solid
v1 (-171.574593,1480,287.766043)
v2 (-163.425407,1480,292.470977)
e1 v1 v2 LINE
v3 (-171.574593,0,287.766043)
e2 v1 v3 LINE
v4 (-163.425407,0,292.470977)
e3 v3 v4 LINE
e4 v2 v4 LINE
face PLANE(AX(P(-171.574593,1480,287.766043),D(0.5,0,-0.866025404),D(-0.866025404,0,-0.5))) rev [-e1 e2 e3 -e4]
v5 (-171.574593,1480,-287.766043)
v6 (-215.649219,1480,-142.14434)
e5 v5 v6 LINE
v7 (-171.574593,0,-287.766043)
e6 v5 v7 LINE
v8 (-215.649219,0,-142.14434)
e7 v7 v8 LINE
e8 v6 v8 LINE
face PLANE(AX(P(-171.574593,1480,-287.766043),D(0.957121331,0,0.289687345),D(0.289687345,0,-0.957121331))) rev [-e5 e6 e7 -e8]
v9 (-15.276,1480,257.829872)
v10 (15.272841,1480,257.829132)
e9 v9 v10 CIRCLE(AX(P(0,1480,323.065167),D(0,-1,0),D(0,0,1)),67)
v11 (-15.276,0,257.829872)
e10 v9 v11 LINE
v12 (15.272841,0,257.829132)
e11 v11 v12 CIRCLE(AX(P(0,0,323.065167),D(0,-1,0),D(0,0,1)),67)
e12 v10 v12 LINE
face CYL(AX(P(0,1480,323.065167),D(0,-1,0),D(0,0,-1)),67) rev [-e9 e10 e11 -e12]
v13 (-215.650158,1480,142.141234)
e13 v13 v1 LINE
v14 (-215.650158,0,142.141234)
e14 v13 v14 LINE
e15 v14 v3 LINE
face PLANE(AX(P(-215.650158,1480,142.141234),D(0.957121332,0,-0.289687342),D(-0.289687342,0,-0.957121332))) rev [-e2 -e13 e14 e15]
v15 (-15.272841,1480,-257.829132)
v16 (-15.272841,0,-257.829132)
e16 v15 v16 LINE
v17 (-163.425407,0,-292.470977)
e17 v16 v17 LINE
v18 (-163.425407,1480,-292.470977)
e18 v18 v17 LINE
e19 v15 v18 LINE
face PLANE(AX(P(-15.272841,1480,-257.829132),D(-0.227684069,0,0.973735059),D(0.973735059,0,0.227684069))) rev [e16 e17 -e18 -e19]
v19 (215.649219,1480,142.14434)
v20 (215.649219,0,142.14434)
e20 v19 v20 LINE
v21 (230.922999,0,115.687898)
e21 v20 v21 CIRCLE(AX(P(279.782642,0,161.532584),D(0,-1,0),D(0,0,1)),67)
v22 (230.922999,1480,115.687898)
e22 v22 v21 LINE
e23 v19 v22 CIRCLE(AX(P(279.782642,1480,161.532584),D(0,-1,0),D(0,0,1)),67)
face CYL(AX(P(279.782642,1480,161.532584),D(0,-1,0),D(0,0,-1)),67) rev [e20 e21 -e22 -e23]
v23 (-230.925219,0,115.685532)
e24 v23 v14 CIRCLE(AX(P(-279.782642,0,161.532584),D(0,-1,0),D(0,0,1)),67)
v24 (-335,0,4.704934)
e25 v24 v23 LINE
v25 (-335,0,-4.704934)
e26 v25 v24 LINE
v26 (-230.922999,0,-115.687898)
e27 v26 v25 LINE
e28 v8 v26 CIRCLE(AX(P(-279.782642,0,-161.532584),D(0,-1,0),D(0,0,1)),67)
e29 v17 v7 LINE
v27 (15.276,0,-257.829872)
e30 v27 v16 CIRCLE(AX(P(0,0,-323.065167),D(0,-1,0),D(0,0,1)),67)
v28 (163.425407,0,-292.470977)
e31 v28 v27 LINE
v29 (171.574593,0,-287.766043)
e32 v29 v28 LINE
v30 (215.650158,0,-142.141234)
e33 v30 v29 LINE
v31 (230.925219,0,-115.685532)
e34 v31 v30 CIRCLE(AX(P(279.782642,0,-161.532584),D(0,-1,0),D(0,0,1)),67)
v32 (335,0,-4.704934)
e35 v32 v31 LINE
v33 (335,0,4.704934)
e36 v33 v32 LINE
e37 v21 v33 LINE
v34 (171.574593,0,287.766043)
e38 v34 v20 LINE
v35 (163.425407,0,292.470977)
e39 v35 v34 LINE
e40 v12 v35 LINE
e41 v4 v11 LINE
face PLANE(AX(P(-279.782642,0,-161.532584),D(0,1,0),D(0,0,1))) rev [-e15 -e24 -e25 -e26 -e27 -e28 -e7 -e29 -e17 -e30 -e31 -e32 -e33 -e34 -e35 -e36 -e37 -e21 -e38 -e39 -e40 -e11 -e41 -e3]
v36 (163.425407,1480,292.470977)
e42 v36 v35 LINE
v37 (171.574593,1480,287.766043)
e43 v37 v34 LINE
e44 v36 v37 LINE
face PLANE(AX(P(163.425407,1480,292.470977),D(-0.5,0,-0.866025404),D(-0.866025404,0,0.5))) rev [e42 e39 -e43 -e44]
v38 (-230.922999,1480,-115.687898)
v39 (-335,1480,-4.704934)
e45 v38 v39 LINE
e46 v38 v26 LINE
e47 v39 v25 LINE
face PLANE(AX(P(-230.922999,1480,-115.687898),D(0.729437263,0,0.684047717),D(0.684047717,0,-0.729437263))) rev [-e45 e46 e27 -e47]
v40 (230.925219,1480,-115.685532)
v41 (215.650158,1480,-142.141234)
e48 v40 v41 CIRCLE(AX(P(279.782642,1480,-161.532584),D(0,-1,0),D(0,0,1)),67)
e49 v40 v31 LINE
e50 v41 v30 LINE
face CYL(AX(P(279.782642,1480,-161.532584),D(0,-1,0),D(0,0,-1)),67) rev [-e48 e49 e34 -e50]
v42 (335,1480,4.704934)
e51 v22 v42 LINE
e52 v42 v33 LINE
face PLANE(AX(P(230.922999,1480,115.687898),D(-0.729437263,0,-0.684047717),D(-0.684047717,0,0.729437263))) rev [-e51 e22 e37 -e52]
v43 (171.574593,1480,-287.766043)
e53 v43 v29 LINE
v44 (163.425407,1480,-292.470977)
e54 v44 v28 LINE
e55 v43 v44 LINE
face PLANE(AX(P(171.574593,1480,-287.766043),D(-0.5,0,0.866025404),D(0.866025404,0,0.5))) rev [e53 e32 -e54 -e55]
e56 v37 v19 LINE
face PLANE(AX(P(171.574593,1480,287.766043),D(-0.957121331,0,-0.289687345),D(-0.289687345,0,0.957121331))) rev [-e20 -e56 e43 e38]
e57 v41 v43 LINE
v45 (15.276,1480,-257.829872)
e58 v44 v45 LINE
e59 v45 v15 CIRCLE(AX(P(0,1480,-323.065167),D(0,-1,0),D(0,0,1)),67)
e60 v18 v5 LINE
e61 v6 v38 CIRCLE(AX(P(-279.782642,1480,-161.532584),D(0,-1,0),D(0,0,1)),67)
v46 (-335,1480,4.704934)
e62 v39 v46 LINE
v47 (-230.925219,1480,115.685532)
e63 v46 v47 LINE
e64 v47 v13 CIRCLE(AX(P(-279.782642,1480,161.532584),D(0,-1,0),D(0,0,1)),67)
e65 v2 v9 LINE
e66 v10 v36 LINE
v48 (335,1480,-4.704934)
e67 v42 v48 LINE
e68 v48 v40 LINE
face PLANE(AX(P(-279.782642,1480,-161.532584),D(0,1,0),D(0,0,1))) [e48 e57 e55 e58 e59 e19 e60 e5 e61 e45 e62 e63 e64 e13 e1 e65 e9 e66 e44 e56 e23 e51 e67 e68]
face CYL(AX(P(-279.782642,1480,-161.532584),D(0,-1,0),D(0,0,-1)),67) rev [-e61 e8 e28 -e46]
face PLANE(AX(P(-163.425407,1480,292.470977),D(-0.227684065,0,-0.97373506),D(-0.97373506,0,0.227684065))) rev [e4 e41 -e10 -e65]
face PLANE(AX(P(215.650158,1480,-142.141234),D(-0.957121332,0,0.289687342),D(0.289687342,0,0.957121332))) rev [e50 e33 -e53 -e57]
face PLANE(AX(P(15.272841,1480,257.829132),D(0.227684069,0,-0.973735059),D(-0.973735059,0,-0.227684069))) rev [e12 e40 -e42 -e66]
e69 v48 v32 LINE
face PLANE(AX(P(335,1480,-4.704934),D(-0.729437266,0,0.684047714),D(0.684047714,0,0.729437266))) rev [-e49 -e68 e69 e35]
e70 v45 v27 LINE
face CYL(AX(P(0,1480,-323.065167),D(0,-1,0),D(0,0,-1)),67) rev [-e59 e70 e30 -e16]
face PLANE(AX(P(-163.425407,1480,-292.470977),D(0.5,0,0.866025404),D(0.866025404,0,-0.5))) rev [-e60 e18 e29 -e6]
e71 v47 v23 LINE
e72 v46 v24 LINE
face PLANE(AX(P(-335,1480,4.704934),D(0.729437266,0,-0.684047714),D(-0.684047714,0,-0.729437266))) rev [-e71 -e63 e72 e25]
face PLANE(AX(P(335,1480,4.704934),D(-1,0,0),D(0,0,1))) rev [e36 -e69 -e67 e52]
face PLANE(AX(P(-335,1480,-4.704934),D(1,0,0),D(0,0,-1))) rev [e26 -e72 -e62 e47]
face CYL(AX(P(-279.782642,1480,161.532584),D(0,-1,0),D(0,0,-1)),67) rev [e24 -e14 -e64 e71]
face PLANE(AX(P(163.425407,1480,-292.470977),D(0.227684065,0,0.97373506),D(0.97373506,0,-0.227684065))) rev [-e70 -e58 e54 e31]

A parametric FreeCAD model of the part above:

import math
import FreeCAD as App
import Part
import Sketcher
Q = App.Units.Quantity

doc = App.newDocument("Part")
params = doc.addObject("Spreadsheet::Sheet", "Params")
for row, (alias, value) in enumerate([
    ("pad1_length", "1480 mm"),
], start=1):
    params.set(f"A{row}", alias)
    params.set(f"B{row}", "=" + value)
    params.setAlias(f"B{row}", alias)

body = doc.addObject("PartDesign::Body", "Body")

# Sketch on XZ plane
sketch1 = body.newObject("Sketcher::SketchObject", "Sketch")
sketch1.AttachmentSupport = (doc.getObject("XZ_Plane"), [""])
sketch1.MapMode = "FlatFace"
sketch1.addGeometry([
    Part.LineSegment(App.Vector(-163, -292, 0), App.Vector(-172, -288, 0)),  # 0
    Part.LineSegment(App.Vector(-172, -288, 0), App.Vector(-216, -142, 0)),  # 1
    Part.ArcOfCircle(Part.Circle(App.Vector(-280, -162, 0), App.Vector(0, 0, 1), 67), math.radians(17), math.radians(43)),  # 2
    Part.LineSegment(App.Vector(-231, -116, 0), App.Vector(-335, -5, 0)),  # 3
    Part.LineSegment(App.Vector(-335, -5, 0), App.Vector(-335, 5, 0)),  # 4
    Part.LineSegment(App.Vector(-335, 5, 0), App.Vector(-231, 116, 0)),  # 5
    Part.ArcOfCircle(Part.Circle(App.Vector(-280, 162, 0), App.Vector(0, 0, 1), 67), math.radians(-43), math.radians(-17)),  # 6
    Part.LineSegment(App.Vector(-216, 142, 0), App.Vector(-172, 288, 0)),  # 7
    Part.LineSegment(App.Vector(-172, 288, 0), App.Vector(-163, 292, 0)),  # 8
    Part.LineSegment(App.Vector(-163, 292, 0), App.Vector(-15, 258, 0)),  # 9
    Part.ArcOfCircle(Part.Circle(App.Vector(0, 323, 0), App.Vector(0, 0, 1), 67), math.radians(-103), math.radians(-77)),  # 10
    Part.LineSegment(App.Vector(15, 258, 0), App.Vector(163, 292, 0)),  # 11
    Part.LineSegment(App.Vector(163, 292, 0), App.Vector(172, 288, 0)),  # 12
    Part.LineSegment(App.Vector(172, 288, 0), App.Vector(216, 142, 0)),  # 13
    Part.ArcOfCircle(Part.Circle(App.Vector(280, 162, 0), App.Vector(0, 0, 1), 67), math.radians(-163), math.radians(-137)),  # 14
    Part.LineSegment(App.Vector(231, 116, 0), App.Vector(335, 5, 0)),  # 15
    Part.LineSegment(App.Vector(335, 5, 0), App.Vector(335, -5, 0)),  # 16
    Part.LineSegment(App.Vector(335, -5, 0), App.Vector(231, -116, 0)),  # 17
    Part.ArcOfCircle(Part.Circle(App.Vector(280, -162, 0), App.Vector(0, 0, 1), 67), math.radians(137), math.radians(163)),  # 18
    Part.LineSegment(App.Vector(216, -142, 0), App.Vector(172, -288, 0)),  # 19
    Part.LineSegment(App.Vector(172, -288, 0), App.Vector(163, -292, 0)),  # 20
    Part.LineSegment(App.Vector(163, -292, 0), App.Vector(15, -258, 0)),  # 21
    Part.ArcOfCircle(Part.Circle(App.Vector(0, -323, 0), App.Vector(0, 0, 1), 67), math.radians(77), math.radians(103)),  # 22
    Part.LineSegment(App.Vector(-15, -258, 0), App.Vector(-163, -292, 0)),  # 23
], False)
sketch1.addConstraint([
    Sketcher.Constraint("Coincident", 0, 2, 1, 1),
    Sketcher.Constraint("Coincident", 1, 2, 2, 1),
    Sketcher.Constraint("Coincident", 2, 2, 3, 1),
    Sketcher.Constraint("Coincident", 3, 2, 4, 1),
    Sketcher.Constraint("Coincident", 4, 2, 5, 1),
    Sketcher.Constraint("Coincident", 5, 2, 6, 1),
    Sketcher.Constraint("Coincident", 6, 2, 7, 1),
    Sketcher.Constraint("Coincident", 7, 2, 8, 1),
    Sketcher.Constraint("Coincident", 8, 2, 9, 1),
    Sketcher.Constraint("Coincident", 9, 2, 10, 1),
    Sketcher.Constraint("Coincident", 10, 2, 11, 1),
    Sketcher.Constraint("Coincident", 11, 2, 12, 1),
    Sketcher.Constraint("Coincident", 12, 2, 13, 1),
    Sketcher.Constraint("Coincident", 13, 2, 14, 1),
    Sketcher.Constraint("Coincident", 14, 2, 15, 1),
    Sketcher.Constraint("Coincident", 15, 2, 16, 1),
    Sketcher.Constraint("Coincident", 16, 2, 17, 1),
    Sketcher.Constraint("Coincident", 17, 2, 18, 1),
    Sketcher.Constraint("Coincident", 18, 2, 19, 1),
    Sketcher.Constraint("Coincident", 19, 2, 20, 1),
    Sketcher.Constraint("Coincident", 20, 2, 21, 1),
    Sketcher.Constraint("Coincident", 21, 2, 22, 1),
    Sketcher.Constraint("Coincident", 22, 2, 23, 1),
    Sketcher.Constraint("Coincident", 23, 2, 0, 1),
    Sketcher.Constraint("Vertical", 4),
    Sketcher.Constraint("Vertical", 16),
    Sketcher.Constraint("Equal", 2, 6),
    Sketcher.Constraint("Equal", 6, 10),
    Sketcher.Constraint("Equal", 10, 14),
    Sketcher.Constraint("Equal", 14, 18),
    Sketcher.Constraint("Equal", 18, 22),
    Sketcher.Constraint("Symmetric", 2, 3, 14, 3, -1, 1),
    Sketcher.Constraint("Symmetric", 6, 3, 18, 3, -1, 1),
    Sketcher.Constraint("Symmetric", 10, 3, 22, 3, -1, 1),
    Sketcher.Constraint("Symmetric", 0, 2, 12, 2, -1, 1),
    Sketcher.Constraint("Symmetric", 3, 2, 15, 2, -1, 1),
    Sketcher.Constraint("Symmetric", 7, 2, 19, 2, -1, 1),
    Sketcher.Constraint("Symmetric", 8, 2, 20, 2, -1, 1),
    Sketcher.Constraint("Symmetric", 11, 2, 23, 2, -1, 1),
    Sketcher.Constraint("Symmetric", 6, 3, 14, 3, -2),
    Sketcher.Constraint("Symmetric", 8, 2, 11, 2, -2),
    Sketcher.Constraint("Symmetric", 7, 2, 12, 2, -2),
    Sketcher.Constraint("PointOnObject", 10, 3, -2),
    Sketcher.Constraint("Parallel", 5, 17),
    Sketcher.Constraint("Horizontal", 4, 2, 15, 2),
    Sketcher.Constraint("Equal", 1, 5),
    Sketcher.Constraint("Equal", 3, 7),
    Sketcher.Constraint("Equal", 5, 9),
    Sketcher.Constraint("Equal", 7, 11),
    Sketcher.Constraint("Equal", 9, 13),
    Sketcher.Constraint("Equal", 11, 15),
    Sketcher.Constraint("Equal", 13, 17),
    Sketcher.Constraint("Equal", 15, 19),
    Sketcher.Constraint("Equal", 17, 21),
    Sketcher.Constraint("Equal", 19, 23),
    Sketcher.Constraint("Angle", 0, Q("150 deg")),
    Sketcher.Constraint("DistanceX", 3, 2, -1, 1, 335.0),
    Sketcher.Constraint("Radius", 2, 67.000008),
    Sketcher.Constraint("DistanceX", 2, 2, -1, 1, 230.922999),
    Sketcher.Constraint("DistanceX", 9, 2, -1, 1, 15.276),
    Sketcher.Constraint("DistanceX", 5, 2, 1, 2, 15.276),
    Sketcher.Constraint("Distance", 1, 152.1455),
    Sketcher.Constraint("DistanceY", 4, 1, 4, 2, 9.409869),
    Sketcher.Constraint("DistanceY", 2, 2, -1, 1, 115.687898),
    Sketcher.Constraint("DistanceX", 6, 3, 14, 3, 559.565299),
    Sketcher.Constraint("DistanceY", 8, 2, 10, 3, 30.594198),
    Sketcher.Constraint("DistanceY", 6, 2, 10, 2, 115.687898),
])
pad1 = body.newObject("PartDesign::Pad", "Pad")
pad1.Profile = sketch1
pad1.setExpression("Length", "Params.pad1_length")
pad1.Reversed = True

doc.recompute()
